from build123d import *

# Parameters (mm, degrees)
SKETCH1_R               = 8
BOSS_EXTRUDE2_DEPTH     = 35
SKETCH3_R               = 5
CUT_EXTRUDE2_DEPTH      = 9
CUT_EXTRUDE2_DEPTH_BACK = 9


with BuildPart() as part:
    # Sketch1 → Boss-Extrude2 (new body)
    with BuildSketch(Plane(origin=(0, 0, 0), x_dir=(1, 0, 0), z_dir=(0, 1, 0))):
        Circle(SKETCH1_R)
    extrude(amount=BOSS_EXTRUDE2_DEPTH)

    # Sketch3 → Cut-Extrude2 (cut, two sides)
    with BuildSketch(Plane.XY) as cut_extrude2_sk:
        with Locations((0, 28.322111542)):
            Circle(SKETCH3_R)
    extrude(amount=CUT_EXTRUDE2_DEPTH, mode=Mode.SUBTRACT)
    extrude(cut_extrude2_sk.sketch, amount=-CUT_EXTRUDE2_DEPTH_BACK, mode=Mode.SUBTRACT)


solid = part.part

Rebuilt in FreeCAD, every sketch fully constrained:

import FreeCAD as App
import Part
import Sketcher

V = App.Vector

doc = App.newDocument("Part")
body = doc.addObject("PartDesign::Body", "Body")

sketch1 = doc.addObject("Sketcher::SketchObject", "Sketch")
body.addObject(sketch1)
sketch1.AttachmentSupport = (doc.XZ_Plane, [""])
sketch1.MapMode = "FlatFace"
sketch1.addGeometry(Part.Circle(V(0, 0, 0), V(0, 0, 1), 8), False)
sketch1.addConstraint([
    Sketcher.Constraint("Coincident", 0, 3, -1, 1),
    Sketcher.Constraint("Diameter", 0, 16.0),
])
pad1 = doc.addObject("PartDesign::Pad", "Pad")
body.addObject(pad1)
pad1.Profile = sketch1
pad1.Length = 35
pad1.Reversed = True

sketch2 = doc.addObject("Sketcher::SketchObject", "Sketch001")
body.addObject(sketch2)
sketch2.AttachmentSupport = (doc.XY_Plane, [""])
sketch2.MapMode = "FlatFace"
sketch2.addGeometry(Part.Circle(V(0, 28, 0), V(0, 0, 1), 5), False)
sketch2.addConstraint([
    Sketcher.Constraint("PointOnObject", 0, 3, -2),
    Sketcher.Constraint("Diameter", 0, 10.0),
    Sketcher.Constraint("DistanceY", -1, 1, 0, 3, 28.322112),
])
pocket1 = doc.addObject("PartDesign::Pocket", "Pocket")
body.addObject(pocket1)
pocket1.Profile = sketch2
pocket1.Type = "ThroughAll"
pocket1.Midplane = True

doc.recompute()
